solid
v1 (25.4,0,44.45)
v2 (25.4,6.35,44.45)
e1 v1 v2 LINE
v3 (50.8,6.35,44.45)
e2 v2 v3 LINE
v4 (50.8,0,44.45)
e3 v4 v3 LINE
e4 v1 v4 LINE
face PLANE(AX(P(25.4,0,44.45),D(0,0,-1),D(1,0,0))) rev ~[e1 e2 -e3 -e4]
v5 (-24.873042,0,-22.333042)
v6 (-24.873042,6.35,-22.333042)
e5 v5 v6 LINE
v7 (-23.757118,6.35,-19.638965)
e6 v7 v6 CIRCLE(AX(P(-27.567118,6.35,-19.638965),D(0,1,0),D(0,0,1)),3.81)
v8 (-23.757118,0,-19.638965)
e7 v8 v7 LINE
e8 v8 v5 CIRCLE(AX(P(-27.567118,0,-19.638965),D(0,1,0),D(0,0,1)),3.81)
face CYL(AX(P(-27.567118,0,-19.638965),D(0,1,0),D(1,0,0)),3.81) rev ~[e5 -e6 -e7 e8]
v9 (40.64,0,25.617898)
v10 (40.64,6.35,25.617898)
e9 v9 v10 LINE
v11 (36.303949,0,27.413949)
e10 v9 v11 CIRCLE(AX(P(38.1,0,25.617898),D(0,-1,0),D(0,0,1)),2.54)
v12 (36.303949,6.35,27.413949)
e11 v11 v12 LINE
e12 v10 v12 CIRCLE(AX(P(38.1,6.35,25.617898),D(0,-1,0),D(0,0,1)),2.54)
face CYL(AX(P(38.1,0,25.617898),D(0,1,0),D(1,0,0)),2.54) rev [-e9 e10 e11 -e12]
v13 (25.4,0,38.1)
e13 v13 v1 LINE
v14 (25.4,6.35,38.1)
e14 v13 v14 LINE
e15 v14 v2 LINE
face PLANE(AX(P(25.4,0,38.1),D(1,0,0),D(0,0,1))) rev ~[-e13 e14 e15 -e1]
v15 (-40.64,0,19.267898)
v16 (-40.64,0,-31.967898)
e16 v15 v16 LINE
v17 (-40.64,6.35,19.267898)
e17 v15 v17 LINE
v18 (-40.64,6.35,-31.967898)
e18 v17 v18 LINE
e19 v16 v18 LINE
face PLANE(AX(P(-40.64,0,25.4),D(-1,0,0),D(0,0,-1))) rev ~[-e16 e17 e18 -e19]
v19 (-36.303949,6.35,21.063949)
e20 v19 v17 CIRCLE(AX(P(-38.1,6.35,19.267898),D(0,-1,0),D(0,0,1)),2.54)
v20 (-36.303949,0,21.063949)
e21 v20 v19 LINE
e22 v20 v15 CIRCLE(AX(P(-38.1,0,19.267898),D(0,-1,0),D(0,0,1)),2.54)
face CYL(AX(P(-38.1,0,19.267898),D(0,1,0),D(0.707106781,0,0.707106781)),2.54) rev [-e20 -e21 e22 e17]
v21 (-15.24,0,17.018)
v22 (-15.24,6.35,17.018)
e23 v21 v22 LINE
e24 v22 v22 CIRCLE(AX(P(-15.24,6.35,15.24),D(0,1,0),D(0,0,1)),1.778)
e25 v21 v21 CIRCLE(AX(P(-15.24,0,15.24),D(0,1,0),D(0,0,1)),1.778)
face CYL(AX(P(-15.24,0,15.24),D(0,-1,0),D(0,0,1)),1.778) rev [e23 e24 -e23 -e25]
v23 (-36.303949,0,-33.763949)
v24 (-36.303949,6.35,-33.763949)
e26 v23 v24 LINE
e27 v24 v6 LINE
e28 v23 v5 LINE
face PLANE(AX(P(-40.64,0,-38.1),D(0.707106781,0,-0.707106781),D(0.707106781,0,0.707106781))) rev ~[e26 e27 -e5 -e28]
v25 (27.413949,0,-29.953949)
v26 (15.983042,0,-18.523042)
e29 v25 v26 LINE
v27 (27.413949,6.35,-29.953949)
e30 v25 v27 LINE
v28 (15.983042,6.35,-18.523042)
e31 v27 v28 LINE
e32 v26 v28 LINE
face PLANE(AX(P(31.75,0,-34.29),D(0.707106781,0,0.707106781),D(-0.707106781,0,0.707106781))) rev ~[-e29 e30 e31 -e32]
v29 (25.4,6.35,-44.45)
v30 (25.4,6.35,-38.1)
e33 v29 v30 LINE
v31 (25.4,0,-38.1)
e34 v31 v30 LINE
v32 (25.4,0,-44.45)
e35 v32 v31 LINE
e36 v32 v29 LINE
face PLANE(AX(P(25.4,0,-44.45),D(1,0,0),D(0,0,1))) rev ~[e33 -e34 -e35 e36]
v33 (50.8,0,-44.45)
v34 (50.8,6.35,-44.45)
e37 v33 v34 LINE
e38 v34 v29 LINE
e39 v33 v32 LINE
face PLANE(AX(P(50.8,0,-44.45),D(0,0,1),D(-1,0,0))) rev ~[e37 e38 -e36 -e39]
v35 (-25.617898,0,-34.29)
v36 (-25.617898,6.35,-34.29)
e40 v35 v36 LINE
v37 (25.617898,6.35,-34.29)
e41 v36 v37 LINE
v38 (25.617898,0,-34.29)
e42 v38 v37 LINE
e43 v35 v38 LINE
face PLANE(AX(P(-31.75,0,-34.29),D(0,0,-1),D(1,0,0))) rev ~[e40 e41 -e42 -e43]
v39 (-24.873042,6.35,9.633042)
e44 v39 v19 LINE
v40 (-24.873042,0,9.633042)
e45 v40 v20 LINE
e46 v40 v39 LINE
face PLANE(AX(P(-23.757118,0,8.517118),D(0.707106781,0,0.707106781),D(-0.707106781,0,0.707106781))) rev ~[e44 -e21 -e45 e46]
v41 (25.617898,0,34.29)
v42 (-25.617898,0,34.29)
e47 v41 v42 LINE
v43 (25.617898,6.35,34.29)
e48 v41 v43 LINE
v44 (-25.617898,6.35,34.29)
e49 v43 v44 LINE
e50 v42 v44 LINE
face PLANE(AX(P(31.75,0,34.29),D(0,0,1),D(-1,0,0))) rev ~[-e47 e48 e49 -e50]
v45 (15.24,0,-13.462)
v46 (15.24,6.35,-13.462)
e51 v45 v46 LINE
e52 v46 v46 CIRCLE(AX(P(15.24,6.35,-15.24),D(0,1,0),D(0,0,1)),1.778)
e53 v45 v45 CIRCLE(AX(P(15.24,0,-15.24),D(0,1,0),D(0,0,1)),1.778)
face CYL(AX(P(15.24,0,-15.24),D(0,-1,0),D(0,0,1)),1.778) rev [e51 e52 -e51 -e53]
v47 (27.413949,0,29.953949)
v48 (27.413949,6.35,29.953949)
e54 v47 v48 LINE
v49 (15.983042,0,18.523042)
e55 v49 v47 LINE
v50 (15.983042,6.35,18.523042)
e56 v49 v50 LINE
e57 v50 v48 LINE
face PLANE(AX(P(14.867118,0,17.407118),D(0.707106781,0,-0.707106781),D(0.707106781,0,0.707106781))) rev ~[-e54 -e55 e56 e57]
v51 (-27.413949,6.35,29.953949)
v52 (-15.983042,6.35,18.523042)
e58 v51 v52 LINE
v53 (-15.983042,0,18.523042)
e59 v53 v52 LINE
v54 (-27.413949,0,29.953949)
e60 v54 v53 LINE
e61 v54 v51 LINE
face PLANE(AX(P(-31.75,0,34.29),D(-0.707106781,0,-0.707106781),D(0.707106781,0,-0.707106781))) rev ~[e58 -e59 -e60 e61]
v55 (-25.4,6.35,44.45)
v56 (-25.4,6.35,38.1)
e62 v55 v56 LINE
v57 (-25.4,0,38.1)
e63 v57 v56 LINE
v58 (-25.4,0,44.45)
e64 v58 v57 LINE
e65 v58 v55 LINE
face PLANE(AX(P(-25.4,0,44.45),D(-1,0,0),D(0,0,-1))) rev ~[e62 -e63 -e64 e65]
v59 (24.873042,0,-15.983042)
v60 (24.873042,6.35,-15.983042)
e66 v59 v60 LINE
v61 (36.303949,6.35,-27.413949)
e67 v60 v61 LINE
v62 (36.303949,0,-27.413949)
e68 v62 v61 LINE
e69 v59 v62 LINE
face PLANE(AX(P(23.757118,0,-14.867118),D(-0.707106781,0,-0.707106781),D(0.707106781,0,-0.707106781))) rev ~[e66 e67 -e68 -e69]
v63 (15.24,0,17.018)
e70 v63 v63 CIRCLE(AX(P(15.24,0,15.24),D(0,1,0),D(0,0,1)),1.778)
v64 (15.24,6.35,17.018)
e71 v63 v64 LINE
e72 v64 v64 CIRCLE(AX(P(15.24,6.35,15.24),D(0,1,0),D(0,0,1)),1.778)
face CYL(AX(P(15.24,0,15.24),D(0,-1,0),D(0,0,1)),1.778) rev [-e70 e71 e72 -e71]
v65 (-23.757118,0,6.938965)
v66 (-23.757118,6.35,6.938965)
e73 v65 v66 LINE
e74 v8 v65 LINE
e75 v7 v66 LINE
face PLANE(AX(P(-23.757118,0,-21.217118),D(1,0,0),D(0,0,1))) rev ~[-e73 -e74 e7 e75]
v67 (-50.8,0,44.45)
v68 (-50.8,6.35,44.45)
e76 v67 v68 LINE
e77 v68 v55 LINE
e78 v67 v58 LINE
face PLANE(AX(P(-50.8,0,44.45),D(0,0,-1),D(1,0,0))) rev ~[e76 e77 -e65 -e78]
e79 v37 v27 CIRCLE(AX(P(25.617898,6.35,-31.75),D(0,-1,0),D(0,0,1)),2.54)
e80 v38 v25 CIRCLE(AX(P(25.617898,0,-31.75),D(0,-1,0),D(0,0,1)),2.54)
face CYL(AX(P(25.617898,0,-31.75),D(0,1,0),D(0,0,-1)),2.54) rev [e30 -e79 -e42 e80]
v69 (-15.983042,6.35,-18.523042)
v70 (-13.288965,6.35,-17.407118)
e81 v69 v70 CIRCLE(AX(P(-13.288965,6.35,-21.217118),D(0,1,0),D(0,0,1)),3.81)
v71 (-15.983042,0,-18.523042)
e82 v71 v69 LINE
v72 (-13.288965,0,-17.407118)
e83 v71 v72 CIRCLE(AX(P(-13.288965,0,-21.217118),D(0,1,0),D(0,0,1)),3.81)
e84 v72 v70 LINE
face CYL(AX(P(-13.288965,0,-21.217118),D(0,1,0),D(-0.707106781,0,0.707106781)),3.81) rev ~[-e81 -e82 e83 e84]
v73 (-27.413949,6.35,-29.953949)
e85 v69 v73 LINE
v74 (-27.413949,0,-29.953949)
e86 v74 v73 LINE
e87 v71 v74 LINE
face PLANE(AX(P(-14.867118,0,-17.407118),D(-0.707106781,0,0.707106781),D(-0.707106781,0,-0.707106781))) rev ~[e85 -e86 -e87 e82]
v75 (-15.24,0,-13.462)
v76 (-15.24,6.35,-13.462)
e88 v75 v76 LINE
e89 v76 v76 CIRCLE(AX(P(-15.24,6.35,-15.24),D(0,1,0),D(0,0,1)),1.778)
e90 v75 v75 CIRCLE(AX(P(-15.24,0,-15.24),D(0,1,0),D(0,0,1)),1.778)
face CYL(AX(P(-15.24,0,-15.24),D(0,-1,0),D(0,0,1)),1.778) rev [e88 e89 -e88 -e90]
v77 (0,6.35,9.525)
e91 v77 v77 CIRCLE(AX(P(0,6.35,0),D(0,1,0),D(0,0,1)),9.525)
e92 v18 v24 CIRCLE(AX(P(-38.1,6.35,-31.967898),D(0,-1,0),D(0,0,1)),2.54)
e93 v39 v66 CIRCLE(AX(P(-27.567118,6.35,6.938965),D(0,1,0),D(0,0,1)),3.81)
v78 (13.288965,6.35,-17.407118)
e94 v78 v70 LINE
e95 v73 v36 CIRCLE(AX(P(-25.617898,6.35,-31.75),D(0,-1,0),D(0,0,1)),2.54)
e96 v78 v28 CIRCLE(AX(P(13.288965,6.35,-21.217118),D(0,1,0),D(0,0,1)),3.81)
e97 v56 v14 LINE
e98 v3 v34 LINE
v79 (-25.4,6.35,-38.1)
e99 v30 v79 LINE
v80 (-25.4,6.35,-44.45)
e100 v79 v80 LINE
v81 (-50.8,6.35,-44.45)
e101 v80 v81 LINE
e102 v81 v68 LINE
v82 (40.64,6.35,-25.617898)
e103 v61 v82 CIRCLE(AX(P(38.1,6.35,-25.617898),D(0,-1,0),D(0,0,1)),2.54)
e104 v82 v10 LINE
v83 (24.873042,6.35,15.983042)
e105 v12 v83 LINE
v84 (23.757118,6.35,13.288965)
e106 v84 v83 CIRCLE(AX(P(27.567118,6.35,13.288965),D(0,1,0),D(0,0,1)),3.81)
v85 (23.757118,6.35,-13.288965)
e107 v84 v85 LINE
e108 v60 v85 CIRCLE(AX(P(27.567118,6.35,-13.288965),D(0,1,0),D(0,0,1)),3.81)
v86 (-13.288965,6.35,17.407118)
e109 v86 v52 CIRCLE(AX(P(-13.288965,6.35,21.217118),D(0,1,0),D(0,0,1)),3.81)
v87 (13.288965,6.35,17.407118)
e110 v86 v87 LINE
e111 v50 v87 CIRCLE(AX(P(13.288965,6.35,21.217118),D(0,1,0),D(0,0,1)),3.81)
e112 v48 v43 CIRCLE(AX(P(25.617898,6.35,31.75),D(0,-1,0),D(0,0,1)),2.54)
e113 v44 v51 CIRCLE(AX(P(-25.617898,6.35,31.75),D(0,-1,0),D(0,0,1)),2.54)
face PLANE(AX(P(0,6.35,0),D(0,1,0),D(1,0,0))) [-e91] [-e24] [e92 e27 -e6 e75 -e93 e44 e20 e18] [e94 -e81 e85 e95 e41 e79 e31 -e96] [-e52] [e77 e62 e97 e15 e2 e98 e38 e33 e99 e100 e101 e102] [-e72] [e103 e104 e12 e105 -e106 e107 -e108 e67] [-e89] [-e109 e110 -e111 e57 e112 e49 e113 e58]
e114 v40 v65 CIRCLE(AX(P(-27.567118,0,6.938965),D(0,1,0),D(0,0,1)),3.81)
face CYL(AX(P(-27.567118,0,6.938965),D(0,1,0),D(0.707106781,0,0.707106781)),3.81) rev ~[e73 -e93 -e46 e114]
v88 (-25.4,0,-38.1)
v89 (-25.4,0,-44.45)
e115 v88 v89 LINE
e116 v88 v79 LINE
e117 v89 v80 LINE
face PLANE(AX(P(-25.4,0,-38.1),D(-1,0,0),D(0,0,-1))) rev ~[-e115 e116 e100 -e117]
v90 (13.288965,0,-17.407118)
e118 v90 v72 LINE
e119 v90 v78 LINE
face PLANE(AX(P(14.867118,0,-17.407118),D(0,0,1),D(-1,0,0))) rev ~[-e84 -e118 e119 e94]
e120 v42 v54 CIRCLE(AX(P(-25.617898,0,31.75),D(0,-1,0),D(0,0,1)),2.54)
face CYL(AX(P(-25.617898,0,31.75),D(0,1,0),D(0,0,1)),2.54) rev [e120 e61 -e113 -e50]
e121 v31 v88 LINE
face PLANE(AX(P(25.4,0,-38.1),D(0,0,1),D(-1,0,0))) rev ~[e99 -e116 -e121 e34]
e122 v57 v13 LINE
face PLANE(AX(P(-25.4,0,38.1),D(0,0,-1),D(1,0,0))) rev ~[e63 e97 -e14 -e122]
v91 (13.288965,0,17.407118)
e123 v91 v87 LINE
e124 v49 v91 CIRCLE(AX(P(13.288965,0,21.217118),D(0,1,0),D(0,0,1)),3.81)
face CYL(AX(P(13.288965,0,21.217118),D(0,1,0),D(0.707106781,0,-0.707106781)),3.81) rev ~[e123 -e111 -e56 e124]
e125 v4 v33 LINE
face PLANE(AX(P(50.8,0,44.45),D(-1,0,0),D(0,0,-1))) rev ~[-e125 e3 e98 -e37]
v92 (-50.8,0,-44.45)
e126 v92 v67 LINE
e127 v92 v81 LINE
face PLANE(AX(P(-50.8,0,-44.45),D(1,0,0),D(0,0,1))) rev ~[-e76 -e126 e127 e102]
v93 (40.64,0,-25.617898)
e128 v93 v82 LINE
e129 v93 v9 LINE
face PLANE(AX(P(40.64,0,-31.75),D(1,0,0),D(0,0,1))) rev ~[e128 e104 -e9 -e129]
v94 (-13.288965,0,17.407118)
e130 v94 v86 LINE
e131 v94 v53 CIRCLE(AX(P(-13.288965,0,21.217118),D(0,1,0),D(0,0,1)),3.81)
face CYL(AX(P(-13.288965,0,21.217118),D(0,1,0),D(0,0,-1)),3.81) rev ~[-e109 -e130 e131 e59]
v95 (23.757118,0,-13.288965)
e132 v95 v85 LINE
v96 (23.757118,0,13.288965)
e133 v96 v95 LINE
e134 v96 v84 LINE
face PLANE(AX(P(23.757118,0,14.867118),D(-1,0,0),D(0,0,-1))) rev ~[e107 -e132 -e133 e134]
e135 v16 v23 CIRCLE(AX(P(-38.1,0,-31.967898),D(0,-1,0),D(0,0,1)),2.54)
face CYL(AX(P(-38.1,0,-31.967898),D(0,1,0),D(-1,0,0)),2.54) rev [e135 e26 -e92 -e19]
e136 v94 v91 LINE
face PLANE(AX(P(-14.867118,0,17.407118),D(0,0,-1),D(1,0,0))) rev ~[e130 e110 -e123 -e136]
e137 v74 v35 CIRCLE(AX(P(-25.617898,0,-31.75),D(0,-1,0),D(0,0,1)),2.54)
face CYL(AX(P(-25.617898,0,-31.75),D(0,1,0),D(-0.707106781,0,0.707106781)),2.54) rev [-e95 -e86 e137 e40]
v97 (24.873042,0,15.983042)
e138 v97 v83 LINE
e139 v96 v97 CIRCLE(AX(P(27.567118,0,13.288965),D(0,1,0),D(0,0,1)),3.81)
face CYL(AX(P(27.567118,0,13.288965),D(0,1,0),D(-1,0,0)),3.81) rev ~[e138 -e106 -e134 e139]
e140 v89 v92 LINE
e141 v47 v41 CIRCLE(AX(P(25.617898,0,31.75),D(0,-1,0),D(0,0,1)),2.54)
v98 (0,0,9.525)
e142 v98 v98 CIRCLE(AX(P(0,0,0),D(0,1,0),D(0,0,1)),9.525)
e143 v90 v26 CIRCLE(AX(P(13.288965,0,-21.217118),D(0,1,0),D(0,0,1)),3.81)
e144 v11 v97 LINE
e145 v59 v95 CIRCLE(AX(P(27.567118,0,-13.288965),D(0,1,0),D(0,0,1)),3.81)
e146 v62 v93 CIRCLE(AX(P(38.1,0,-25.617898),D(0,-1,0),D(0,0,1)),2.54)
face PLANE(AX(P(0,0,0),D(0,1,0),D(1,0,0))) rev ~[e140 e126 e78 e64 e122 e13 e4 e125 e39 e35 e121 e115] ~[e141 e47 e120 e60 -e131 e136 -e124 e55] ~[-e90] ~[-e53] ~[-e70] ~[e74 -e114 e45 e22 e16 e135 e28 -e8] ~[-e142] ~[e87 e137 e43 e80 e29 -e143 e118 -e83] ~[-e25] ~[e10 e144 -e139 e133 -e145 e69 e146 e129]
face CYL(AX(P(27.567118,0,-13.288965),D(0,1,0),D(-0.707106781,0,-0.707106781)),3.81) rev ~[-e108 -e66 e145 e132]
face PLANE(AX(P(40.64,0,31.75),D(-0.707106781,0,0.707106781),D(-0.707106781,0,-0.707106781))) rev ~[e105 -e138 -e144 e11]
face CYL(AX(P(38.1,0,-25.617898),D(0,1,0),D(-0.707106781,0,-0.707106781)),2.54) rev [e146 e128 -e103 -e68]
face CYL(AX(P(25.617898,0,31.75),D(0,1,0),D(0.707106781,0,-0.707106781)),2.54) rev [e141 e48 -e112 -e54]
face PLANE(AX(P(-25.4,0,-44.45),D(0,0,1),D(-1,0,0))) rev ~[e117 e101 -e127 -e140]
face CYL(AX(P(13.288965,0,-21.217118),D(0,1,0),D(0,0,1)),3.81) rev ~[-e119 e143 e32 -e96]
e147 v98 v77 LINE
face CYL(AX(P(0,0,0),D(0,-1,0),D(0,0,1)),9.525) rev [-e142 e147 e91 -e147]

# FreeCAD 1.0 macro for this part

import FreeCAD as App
import Part
import Sketcher

V = App.Vector
Q = App.Units.Quantity


def edges_at(feature, points):
    """Names of the edges that pass closest to the given points."""
    edges = feature.Shape.Edges
    near = lambda p: min(range(len(edges)), key=lambda i: edges[i].distToShape(Part.Vertex(*p))[0])
    return sorted({f"Edge{near(p) + 1}" for p in points})

doc = App.newDocument("Part")
body = doc.addObject("PartDesign::Body", "Body")

sketch1 = body.newObject("Sketcher::SketchObject", "Sketch")
sketch1.AttachmentSupport = (doc.getObject("XZ_Plane"), [""])
sketch1.MapMode = "FlatFace"
sketch1.addGeometry([
    Part.LineSegment(V(-25.4, -38.1, 0), V(-25.4, -44.45, 0)),
    Part.LineSegment(V(-25.4, -44.45, 0), V(-50.8, -44.45, 0)),
    Part.LineSegment(V(-50.8, -44.45, 0), V(-50.8, 44.45, 0)),
    Part.LineSegment(V(-50.8, 44.45, 0), V(-25.4, 44.45, 0)),
    Part.LineSegment(V(-25.4, 44.45, 0), V(-25.4, 38.1, 0)),
    Part.LineSegment(V(-25.4, 38.1, 0), V(25.4, 38.1, 0)),
    Part.LineSegment(V(25.4, 38.1, 0), V(25.4, 44.45, 0)),
    Part.LineSegment(V(25.4, 44.45, 0), V(50.8, 44.45, 0)),
    Part.LineSegment(V(50.8, 44.45, 0), V(50.8, -44.45, 0)),
    Part.LineSegment(V(50.8, -44.45, 0), V(25.4, -44.45, 0)),
    Part.LineSegment(V(25.4, -44.45, 0), V(25.4, -38.1, 0)),
    Part.LineSegment(V(25.4, -38.1, 0), V(-25.4, -38.1, 0)),
    Part.LineSegment(V(14.867118, 17.407118, 0), V(31.75, 34.29, 0)),
    Part.LineSegment(V(31.75, 34.29, 0), V(-31.75, 34.29, 0)),
    Part.LineSegment(V(-31.75, 34.29, 0), V(-14.867118, 17.407118, 0)),
    Part.LineSegment(V(-14.867118, 17.407118, 0), V(14.867118, 17.407118, 0)),
    Part.Circle(V(-15.24, 15.24, 0), V(0, 0, 1), 1.778),
    Part.Circle(V(0, 0, 0), V(0, 0, 1), 9.525),
    Part.Circle(V(15.24, 15.24, 0), V(0, 0, 1), 1.778),
    Part.LineSegment(V(23.757118, -14.867118, 0), V(40.64, -31.75, 0)),
    Part.LineSegment(V(40.64, -31.75, 0), V(40.64, 31.75, 0)),
    Part.LineSegment(V(40.64, 31.75, 0), V(23.757118, 14.867118, 0)),
    Part.LineSegment(V(23.757118, 14.867118, 0), V(23.757118, -14.867118, 0)),
    Part.LineSegment(V(-23.757118, 8.517118, 0), V(-40.64, 25.4, 0)),
    Part.LineSegment(V(-40.64, 25.4, 0), V(-40.64, -38.1, 0)),
    Part.LineSegment(V(-40.64, -38.1, 0), V(-23.757118, -21.217118, 0)),
    Part.LineSegment(V(-23.757118, -21.217118, 0), V(-23.757118, 8.517118, 0)),
    Part.Circle(V(-15.24, -15.24, 0), V(0, 0, 1), 1.778),
    Part.LineSegment(V(-14.867118, -17.407118, 0), V(-31.75, -34.29, 0)),
    Part.LineSegment(V(-31.75, -34.29, 0), V(31.75, -34.29, 0)),
    Part.LineSegment(V(31.75, -34.29, 0), V(14.867118, -17.407118, 0)),
    Part.LineSegment(V(14.867118, -17.407118, 0), V(-14.867118, -17.407118, 0)),
    Part.Circle(V(15.24, -15.24, 0), V(0, 0, 1), 1.778),
], False)
sketch1.addConstraint([
    Sketcher.Constraint("Coincident", 0, 2, 1, 1),
    Sketcher.Constraint("Coincident", 1, 2, 2, 1),
    Sketcher.Constraint("Coincident", 2, 2, 3, 1),
    Sketcher.Constraint("Coincident", 3, 2, 4, 1),
    Sketcher.Constraint("Coincident", 4, 2, 5, 1),
    Sketcher.Constraint("Coincident", 5, 2, 6, 1),
    Sketcher.Constraint("Coincident", 6, 2, 7, 1),
    Sketcher.Constraint("Coincident", 7, 2, 8, 1),
    Sketcher.Constraint("Coincident", 8, 2, 9, 1),
    Sketcher.Constraint("Coincident", 9, 2, 10, 1),
    Sketcher.Constraint("Coincident", 10, 2, 11, 1),
    Sketcher.Constraint("Coincident", 11, 2, 0, 1),
    Sketcher.Constraint("Coincident", 12, 2, 13, 1),
    Sketcher.Constraint("Coincident", 13, 2, 14, 1),
    Sketcher.Constraint("Coincident", 14, 2, 15, 1),
    Sketcher.Constraint("Coincident", 15, 2, 12, 1),
    Sketcher.Constraint("Coincident", 19, 2, 20, 1),
    Sketcher.Constraint("Coincident", 20, 2, 21, 1),
    Sketcher.Constraint("Coincident", 21, 2, 22, 1),
    Sketcher.Constraint("Coincident", 22, 2, 19, 1),
    Sketcher.Constraint("Coincident", 23, 2, 24, 1),
    Sketcher.Constraint("Coincident", 24, 2, 25, 1),
    Sketcher.Constraint("Coincident", 25, 2, 26, 1),
    Sketcher.Constraint("Coincident", 26, 2, 23, 1),
    Sketcher.Constraint("Coincident", 28, 2, 29, 1),
    Sketcher.Constraint("Coincident", 29, 2, 30, 1),
    Sketcher.Constraint("Coincident", 30, 2, 31, 1),
    Sketcher.Constraint("Coincident", 31, 2, 28, 1),
    Sketcher.Constraint("Vertical", 0),
    Sketcher.Constraint("Horizontal", 1),
    Sketcher.Constraint("Vertical", 2),
    Sketcher.Constraint("Horizontal", 3),
    Sketcher.Constraint("Vertical", 4),
    Sketcher.Constraint("Horizontal", 5),
    Sketcher.Constraint("Vertical", 6),
    Sketcher.Constraint("Horizontal", 7),
    Sketcher.Constraint("Vertical", 8),
    Sketcher.Constraint("Horizontal", 9),
    Sketcher.Constraint("Vertical", 10),
    Sketcher.Constraint("Horizontal", 11),
    Sketcher.Constraint("Horizontal", 13),
    Sketcher.Constraint("Horizontal", 15),
    Sketcher.Constraint("Vertical", 20),
    Sketcher.Constraint("Vertical", 22),
    Sketcher.Constraint("Vertical", 24),
    Sketcher.Constraint("Vertical", 26),
    Sketcher.Constraint("Horizontal", 29),
    Sketcher.Constraint("Horizontal", 31),
    Sketcher.Constraint("Coincident", 17, 3, -1, 1),
    Sketcher.Constraint("Equal", 16, 18),
    Sketcher.Constraint("Equal", 18, 27),
    Sketcher.Constraint("Equal", 27, 32),
    Sketcher.Constraint("Symmetric", 18, 3, 27, 3, -1, 1),
    Sketcher.Constraint("Symmetric", 16, 3, 32, 3, -1, 1),
    Sketcher.Constraint("Symmetric", 0, 2, 6, 2, -1, 1),
    Sketcher.Constraint("Symmetric", 2, 2, 8, 2, -1, 1),
    Sketcher.Constraint("Symmetric", 4, 2, 10, 2, -1, 1),
    Sketcher.Constraint("Symmetric", 12, 2, 28, 2, -1, 1),
    Sketcher.Constraint("Symmetric", 14, 2, 30, 2, -1, 1),
    Sketcher.Constraint("Symmetric", 16, 3, 18, 3, -2),
    Sketcher.Constraint("Symmetric", 3, 2, 6, 2, -2),
    Sketcher.Constraint("Perpendicular", 12, 14),
    Sketcher.Constraint("Parallel", 14, 19),
    Sketcher.Constraint("Perpendicular", 19, 21),
    Sketcher.Constraint("Perpendicular", 21, 23),
    Sketcher.Constraint("Perpendicular", 23, 25),
    Sketcher.Constraint("Parallel", 25, 28),
    Sketcher.Constraint("Perpendicular", 28, 30),
    Sketcher.Constraint("Horizontal", 11, 2, 24, 2),
    Sketcher.Constraint("Vertical", 13, 2, 28, 2),
    Sketcher.Constraint("Vertical", 15, 2, 30, 2),
    Sketcher.Constraint("Equal", 29, 20),
    Sketcher.Constraint("Equal", 31, 22),
    Sketcher.Constraint("Equal", 20, 24),
    Sketcher.Constraint("Equal", 22, 26),
    Sketcher.Constraint("Diameter", 16, Q("0.14 in")),
    Sketcher.Constraint("Diameter", 17, Q("0.75 in")),
    Sketcher.Constraint("DistanceX", 1, 2, 1, 1, Q("1 in")),
    Sketcher.Constraint("DistanceX", 5, 1, 5, 2, Q("2 in")),
    Sketcher.Constraint("DistanceX", 13, 2, 13, 1, Q("2.5 in")),
    Sketcher.Constraint("DistanceY", 2, 1, 2, 2, Q("3.5 in")),
    Sketcher.Constraint("DistanceY", -1, 1, 23, 2, Q("1 in")),
    Sketcher.Constraint("DistanceX", 32, 3, 19, 2, Q("1 in")),
    Sketcher.Constraint("DistanceX", 24, 2, 27, 3, Q("1 in")),
    Sketcher.Constraint("DistanceX", 16, 3, -1, 1, Q("0.6 in")),
    Sketcher.Constraint("DistanceY", -1, 1, 16, 3, Q("0.6 in")),
    Sketcher.Constraint("DistanceY", 12, 2, 6, 2, Q("0.4 in")),
    Sketcher.Constraint("DistanceY", 8, 2, 19, 2, Q("0.5 in")),
    Sketcher.Constraint("Distance", 12, Q("0.94 in")),
])
pad1 = body.newObject("PartDesign::Pad", "Pad")
pad1.Profile = sketch1
pad1.Length = Q("0.25 in")
pad1.Reversed = True
doc.recompute()

fillet = body.newObject("PartDesign::Fillet", "Fillet")
fillet.Base = (pad1, edges_at(pad1, [
    (14.867, 3.175, -17.407),
    (-14.867, 3.175, -17.407),
    (14.867, 3.175, 17.407),
    (-14.867, 3.175, 17.407),
    (23.757, 3.175, -14.867),
    (23.757, 3.175, 14.867),
    (-23.757, 3.175, 8.517),
    (-23.757, 3.175, -21.217),
]))
fillet.Radius = Q("0.15 in")
doc.recompute()

fillet2 = body.newObject("PartDesign::Fillet", "Fillet001")
fillet2.Base = (fillet, edges_at(fillet, [
    (31.75, 3.175, -34.29),
    (-31.75, 3.175, -34.29),
    (-31.75, 3.175, 34.29),
    (31.75, 3.175, 34.29),
    (40.64, 3.175, -31.75),
    (40.64, 3.175, 31.75),
    (-40.64, 3.175, 25.4),
    (-40.64, 3.175, -38.1),
]))
fillet2.Radius = Q("0.1 in")

doc.recompute()
